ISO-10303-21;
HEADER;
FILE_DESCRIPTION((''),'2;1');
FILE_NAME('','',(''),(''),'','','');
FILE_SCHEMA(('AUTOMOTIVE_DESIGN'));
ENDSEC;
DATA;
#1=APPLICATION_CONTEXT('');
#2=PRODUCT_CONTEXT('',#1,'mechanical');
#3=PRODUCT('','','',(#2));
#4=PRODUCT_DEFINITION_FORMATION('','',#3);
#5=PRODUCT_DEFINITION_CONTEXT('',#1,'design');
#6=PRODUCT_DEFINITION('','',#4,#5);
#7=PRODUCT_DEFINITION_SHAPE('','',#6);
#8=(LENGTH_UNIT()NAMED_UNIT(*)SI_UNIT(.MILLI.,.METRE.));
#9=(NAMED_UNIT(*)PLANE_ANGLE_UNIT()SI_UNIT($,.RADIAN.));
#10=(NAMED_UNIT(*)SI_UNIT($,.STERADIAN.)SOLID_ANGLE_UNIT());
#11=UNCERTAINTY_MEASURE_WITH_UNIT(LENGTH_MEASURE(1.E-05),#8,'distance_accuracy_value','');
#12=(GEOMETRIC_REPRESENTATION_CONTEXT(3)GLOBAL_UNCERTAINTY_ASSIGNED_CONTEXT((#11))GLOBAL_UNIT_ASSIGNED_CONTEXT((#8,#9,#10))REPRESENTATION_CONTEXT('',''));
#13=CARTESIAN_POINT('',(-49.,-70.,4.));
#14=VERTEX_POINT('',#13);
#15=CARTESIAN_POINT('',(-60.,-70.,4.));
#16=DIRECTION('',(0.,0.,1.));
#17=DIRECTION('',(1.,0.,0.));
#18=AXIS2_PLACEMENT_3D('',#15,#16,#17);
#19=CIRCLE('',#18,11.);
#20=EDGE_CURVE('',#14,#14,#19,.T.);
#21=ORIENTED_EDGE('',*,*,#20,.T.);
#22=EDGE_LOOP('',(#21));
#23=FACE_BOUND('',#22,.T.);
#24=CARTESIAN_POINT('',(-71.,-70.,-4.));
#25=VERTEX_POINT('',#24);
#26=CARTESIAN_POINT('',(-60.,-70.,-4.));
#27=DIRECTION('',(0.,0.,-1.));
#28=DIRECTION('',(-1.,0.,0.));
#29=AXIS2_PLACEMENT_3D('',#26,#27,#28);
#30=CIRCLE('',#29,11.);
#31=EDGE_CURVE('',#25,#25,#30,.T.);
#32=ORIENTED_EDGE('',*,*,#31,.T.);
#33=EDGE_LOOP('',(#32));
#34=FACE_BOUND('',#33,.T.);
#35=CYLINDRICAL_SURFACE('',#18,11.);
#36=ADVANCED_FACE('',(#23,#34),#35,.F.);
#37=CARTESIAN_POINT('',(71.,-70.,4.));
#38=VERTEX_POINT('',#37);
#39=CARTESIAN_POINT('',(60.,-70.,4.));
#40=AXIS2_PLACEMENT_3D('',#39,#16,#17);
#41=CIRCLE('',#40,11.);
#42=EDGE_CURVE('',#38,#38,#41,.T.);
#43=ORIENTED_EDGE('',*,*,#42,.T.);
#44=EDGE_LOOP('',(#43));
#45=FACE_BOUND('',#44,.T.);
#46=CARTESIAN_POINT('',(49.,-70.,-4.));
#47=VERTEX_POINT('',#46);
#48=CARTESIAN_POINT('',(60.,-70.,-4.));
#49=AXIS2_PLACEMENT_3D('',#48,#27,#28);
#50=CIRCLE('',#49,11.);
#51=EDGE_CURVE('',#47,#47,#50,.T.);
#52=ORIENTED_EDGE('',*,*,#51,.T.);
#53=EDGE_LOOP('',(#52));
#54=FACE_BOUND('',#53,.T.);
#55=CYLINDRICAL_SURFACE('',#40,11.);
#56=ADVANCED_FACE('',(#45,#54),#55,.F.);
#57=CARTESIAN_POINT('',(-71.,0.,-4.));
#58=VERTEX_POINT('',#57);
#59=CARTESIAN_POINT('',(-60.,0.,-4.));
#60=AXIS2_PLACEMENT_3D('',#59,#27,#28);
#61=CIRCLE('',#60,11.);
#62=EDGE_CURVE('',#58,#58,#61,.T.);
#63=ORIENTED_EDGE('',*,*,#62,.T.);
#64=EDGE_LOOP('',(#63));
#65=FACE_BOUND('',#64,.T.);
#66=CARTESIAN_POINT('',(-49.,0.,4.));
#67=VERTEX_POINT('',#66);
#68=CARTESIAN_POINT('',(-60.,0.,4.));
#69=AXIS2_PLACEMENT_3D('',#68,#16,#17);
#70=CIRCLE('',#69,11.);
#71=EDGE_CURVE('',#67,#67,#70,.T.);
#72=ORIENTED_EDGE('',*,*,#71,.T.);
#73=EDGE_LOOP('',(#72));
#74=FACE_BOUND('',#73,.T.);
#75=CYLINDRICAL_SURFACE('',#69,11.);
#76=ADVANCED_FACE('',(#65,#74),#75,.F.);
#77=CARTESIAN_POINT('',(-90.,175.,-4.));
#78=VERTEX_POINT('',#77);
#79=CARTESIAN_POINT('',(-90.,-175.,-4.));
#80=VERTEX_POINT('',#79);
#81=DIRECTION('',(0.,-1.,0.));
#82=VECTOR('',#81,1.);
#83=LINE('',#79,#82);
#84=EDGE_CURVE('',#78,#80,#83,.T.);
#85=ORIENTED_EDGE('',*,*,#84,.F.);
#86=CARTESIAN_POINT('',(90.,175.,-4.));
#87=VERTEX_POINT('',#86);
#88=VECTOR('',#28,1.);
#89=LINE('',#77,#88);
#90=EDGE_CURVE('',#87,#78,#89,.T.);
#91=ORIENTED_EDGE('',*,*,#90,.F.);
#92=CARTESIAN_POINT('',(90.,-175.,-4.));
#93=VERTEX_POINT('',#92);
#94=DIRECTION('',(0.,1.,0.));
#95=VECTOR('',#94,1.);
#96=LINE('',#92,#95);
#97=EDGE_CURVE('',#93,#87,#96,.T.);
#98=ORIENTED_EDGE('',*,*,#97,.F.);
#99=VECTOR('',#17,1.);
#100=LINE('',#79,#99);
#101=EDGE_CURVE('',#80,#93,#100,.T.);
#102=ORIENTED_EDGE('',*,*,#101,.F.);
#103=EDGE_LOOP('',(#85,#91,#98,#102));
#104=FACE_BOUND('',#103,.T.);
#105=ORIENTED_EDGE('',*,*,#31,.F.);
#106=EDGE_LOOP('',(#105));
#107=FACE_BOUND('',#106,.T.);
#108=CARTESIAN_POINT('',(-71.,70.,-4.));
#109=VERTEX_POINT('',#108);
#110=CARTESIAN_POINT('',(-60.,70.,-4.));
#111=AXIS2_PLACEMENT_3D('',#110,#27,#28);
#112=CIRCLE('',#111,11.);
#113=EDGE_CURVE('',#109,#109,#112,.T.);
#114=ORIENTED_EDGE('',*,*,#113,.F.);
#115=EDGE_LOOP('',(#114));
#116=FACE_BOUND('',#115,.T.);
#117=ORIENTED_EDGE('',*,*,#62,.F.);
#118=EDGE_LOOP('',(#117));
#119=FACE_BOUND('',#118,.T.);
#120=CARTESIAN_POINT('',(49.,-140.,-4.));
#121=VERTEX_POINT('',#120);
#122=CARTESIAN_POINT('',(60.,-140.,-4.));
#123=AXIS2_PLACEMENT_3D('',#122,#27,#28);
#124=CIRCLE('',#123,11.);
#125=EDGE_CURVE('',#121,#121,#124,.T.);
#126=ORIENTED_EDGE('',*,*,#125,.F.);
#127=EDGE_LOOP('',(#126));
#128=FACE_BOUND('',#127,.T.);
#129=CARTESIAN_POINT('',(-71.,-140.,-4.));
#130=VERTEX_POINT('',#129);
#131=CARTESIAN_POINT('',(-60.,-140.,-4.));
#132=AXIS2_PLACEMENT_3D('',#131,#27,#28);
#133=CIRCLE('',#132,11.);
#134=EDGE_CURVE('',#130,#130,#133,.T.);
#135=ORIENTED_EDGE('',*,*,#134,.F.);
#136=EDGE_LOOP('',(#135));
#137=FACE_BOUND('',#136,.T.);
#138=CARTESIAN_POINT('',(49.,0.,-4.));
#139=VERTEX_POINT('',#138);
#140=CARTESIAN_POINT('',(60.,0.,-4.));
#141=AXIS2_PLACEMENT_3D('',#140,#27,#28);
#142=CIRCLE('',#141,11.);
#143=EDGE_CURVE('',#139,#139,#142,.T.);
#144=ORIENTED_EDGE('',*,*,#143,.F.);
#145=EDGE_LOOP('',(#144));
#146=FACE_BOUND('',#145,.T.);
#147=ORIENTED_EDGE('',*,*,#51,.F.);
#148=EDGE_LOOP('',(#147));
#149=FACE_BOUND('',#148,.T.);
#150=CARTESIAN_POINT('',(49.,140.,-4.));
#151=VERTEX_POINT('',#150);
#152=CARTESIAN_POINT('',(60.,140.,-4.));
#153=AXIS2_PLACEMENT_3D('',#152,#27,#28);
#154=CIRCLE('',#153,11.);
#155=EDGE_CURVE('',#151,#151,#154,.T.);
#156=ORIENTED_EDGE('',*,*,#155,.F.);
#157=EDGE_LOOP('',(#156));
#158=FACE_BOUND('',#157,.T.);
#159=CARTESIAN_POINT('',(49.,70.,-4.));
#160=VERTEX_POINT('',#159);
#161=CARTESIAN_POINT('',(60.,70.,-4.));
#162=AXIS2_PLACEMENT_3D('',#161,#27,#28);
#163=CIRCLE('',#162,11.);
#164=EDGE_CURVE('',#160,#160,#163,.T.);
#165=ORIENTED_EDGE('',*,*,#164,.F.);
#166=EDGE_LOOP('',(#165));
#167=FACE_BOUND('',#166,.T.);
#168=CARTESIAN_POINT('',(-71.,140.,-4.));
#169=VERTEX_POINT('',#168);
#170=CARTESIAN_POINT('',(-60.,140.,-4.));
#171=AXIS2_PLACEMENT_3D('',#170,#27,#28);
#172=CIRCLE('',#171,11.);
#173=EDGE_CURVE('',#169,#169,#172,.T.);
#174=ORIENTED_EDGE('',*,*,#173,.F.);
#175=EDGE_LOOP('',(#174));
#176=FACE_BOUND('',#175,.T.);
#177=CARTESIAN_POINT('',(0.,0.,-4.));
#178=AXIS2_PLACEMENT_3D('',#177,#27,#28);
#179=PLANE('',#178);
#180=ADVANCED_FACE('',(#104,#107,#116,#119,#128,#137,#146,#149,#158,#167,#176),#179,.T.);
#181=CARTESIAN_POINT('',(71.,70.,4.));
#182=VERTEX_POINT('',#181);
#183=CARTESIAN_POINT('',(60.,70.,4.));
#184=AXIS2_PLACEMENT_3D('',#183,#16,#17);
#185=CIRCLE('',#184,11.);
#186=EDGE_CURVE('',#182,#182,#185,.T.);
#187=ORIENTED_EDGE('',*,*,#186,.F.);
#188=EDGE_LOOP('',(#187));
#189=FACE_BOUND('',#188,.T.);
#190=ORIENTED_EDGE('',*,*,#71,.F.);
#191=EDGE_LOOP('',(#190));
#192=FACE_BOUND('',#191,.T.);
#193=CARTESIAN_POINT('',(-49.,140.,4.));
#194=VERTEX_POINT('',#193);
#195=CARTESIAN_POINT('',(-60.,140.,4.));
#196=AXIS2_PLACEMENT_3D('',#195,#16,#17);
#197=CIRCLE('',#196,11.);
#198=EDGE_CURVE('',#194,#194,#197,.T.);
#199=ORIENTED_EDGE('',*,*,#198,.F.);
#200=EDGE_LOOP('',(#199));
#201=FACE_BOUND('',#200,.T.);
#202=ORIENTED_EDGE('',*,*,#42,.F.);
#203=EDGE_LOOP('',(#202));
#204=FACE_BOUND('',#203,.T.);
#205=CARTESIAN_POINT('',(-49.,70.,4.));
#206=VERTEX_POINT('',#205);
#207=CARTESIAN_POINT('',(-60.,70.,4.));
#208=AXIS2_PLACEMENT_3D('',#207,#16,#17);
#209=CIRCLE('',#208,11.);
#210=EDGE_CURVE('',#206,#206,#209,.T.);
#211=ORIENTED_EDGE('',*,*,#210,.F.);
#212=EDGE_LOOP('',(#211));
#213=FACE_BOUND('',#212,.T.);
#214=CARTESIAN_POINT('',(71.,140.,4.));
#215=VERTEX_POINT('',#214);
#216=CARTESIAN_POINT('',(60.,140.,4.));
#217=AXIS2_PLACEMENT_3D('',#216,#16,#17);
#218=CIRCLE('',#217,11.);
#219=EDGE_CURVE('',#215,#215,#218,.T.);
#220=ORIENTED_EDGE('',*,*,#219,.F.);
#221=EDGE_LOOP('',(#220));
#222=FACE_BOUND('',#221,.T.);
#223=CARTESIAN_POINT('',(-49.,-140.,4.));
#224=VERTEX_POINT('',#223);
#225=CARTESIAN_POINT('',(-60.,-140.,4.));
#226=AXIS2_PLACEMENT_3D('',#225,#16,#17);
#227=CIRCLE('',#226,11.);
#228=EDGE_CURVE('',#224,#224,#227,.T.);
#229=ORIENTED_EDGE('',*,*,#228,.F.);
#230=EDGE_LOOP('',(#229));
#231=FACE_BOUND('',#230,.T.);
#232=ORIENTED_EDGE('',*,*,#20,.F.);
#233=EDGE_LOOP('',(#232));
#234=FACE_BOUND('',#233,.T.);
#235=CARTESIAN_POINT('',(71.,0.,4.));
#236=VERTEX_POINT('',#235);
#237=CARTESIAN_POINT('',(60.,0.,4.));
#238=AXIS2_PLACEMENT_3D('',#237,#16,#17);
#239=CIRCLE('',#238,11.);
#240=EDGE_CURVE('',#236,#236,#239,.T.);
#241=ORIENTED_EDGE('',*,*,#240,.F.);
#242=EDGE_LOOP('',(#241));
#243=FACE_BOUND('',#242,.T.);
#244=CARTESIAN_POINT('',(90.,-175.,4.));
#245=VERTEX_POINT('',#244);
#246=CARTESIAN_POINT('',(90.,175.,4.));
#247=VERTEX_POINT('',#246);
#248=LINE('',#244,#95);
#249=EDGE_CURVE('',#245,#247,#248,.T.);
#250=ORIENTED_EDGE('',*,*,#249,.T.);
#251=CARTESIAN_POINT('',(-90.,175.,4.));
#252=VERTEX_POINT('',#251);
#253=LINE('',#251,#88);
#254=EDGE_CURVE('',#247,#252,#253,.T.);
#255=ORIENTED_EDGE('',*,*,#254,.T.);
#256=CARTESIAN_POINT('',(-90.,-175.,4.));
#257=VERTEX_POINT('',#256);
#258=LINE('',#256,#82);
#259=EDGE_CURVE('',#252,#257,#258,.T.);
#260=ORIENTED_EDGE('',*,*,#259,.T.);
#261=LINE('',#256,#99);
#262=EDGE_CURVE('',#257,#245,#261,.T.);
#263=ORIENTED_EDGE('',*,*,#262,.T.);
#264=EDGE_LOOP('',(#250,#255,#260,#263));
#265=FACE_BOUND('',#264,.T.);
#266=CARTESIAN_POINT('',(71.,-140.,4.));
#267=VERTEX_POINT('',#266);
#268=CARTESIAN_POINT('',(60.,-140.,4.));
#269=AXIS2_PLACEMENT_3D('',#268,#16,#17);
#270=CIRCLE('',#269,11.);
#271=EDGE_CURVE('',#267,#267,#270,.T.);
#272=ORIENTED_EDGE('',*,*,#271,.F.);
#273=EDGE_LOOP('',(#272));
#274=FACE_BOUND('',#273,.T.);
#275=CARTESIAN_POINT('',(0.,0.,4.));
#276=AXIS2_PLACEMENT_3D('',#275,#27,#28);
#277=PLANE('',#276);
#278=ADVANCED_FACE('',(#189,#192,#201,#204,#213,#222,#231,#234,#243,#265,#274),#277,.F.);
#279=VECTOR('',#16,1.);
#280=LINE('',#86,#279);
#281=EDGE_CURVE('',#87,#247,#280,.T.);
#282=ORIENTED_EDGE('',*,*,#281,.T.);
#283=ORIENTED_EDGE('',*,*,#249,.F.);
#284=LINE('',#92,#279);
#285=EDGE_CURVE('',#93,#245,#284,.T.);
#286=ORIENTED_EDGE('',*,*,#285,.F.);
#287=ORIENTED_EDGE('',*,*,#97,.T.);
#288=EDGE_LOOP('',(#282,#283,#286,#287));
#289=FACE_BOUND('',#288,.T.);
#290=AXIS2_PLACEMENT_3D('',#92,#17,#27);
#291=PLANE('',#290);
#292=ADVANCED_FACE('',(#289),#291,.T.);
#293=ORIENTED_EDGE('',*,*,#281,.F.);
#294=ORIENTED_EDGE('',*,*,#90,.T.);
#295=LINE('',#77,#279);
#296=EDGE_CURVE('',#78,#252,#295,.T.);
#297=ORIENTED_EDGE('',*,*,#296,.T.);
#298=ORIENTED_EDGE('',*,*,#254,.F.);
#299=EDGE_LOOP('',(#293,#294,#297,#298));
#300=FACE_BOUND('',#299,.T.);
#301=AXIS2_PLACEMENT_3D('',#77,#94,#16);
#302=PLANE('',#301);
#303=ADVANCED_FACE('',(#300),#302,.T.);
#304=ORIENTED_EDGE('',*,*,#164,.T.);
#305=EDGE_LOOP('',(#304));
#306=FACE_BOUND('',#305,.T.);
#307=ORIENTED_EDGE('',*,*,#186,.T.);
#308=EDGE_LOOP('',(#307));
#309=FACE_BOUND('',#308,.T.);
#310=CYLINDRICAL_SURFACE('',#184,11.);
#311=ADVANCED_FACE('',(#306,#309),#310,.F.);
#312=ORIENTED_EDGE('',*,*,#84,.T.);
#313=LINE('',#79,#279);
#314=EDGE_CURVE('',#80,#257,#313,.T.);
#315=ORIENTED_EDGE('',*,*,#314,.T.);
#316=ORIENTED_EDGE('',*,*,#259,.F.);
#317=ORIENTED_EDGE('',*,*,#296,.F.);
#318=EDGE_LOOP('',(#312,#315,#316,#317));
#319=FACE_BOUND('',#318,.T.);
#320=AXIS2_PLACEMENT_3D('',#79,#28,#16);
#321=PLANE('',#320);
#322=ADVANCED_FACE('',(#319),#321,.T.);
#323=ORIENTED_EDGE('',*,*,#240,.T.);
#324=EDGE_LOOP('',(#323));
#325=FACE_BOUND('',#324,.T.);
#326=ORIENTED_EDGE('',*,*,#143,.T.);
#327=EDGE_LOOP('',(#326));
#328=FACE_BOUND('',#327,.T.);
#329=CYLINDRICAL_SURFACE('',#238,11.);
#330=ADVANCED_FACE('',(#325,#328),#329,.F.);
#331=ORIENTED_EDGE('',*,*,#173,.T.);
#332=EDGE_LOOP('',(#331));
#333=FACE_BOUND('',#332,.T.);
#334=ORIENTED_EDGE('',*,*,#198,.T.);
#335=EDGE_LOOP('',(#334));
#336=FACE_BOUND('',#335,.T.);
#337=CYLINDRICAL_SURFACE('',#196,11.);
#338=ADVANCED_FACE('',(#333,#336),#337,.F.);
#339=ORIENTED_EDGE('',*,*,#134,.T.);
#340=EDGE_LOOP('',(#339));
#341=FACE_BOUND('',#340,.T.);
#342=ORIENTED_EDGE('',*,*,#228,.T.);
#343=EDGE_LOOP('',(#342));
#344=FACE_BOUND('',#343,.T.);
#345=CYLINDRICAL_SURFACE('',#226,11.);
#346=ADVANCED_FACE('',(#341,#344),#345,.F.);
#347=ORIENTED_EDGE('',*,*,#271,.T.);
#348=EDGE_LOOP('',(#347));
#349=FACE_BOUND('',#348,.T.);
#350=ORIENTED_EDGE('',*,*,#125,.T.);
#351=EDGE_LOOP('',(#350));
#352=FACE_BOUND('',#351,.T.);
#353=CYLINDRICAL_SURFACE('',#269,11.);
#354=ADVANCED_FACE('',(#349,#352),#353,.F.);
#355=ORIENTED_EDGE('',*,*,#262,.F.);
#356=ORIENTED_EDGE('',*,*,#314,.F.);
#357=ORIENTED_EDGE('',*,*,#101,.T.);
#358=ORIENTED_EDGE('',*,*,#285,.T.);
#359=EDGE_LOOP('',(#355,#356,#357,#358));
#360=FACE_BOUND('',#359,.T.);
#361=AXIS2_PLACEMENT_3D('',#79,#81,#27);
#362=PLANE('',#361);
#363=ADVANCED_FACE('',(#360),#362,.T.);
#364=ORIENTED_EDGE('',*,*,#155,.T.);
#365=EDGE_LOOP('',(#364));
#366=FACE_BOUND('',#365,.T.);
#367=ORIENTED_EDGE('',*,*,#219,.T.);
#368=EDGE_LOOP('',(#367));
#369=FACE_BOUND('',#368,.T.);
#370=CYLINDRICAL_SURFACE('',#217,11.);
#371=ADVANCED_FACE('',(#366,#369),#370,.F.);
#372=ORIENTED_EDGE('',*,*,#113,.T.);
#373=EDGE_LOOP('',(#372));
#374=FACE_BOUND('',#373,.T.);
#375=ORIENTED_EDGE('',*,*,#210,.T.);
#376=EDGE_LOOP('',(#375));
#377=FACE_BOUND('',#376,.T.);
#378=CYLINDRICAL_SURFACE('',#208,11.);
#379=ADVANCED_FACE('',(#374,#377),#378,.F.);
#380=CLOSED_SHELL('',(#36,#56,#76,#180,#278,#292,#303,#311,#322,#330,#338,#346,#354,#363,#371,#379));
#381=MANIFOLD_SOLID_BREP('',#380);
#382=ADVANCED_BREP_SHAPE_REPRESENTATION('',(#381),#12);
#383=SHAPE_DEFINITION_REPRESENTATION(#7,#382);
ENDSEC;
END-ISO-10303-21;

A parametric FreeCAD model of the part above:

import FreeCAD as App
import Part
import Sketcher

V = App.Vector
Q = App.Units.Quantity

doc = App.newDocument("Part")
body = doc.addObject("PartDesign::Body", "Body")

# Sketch on XY plane
sketch1 = body.newObject("Sketcher::SketchObject", "Sketch")
sketch1.AttachmentSupport = (doc.getObject("XY_Plane"), [""])
sketch1.MapMode = "FlatFace"
sketch1.addGeometry(Part.LineSegment(V(-90, 175, 0), V(-90, -175, 0)), False)
sketch1.addGeometry(Part.LineSegment(V(-90, -175, 0), V(90, -175, 0)), False)
sketch1.addGeometry(Part.LineSegment(V(90, -175, 0), V(90, 175, 0)), False)
sketch1.addGeometry(Part.LineSegment(V(90, 175, 0), V(-90, 175, 0)), False)
sketch1.addConstraint(Sketcher.Constraint("Coincident", 0, 2, 1, 1))
sketch1.addConstraint(Sketcher.Constraint("Coincident", 1, 2, 2, 1))
sketch1.addConstraint(Sketcher.Constraint("Coincident", 2, 2, 3, 1))
sketch1.addConstraint(Sketcher.Constraint("Coincident", 3, 2, 0, 1))
sketch1.addConstraint(Sketcher.Constraint("Vertical", 0))
sketch1.addConstraint(Sketcher.Constraint("Horizontal", 1))
sketch1.addConstraint(Sketcher.Constraint("Vertical", 2))
sketch1.addConstraint(Sketcher.Constraint("Horizontal", 3))
sketch1.addConstraint(Sketcher.Constraint("Symmetric", 0, 2, 2, 2, -1, 1))
sketch1.addConstraint(Sketcher.Constraint("DistanceX", 1, 1, 1, 2, Q("180 mm")))
sketch1.addConstraint(Sketcher.Constraint("DistanceY", 0, 2, 0, 1, Q("350 mm")))
pad1 = body.newObject("PartDesign::Pad", "Pad")
pad1.Profile = sketch1
pad1.Length = 8
pad1.Midplane = True

# Sketch on XY plane
sketch2 = body.newObject("Sketcher::SketchObject", "Sketch001")
sketch2.AttachmentSupport = (doc.getObject("XY_Plane"), [""])
sketch2.MapMode = "FlatFace"
sketch2.AttachmentOffset = App.Placement(V(0, 0, 4), App.Rotation())
sketch2.addGeometry(Part.Circle(V(-60, 140, 0), V(0, 0, 1), 11), False)
sketch2.addGeometry(Part.Circle(V(60, 140, 0), V(0, 0, 1), 11), False)
sketch2.addConstraint(Sketcher.Constraint("Equal", 0, 1))
sketch2.addConstraint(Sketcher.Constraint("Symmetric", 0, 3, 1, 3, -2))
sketch2.addConstraint(Sketcher.Constraint("Diameter", 0, Q("22 mm")))
sketch2.addConstraint(Sketcher.Constraint("DistanceX", 0, 3, -1, 1, Q("60 mm")))
sketch2.addConstraint(Sketcher.Constraint("DistanceY", -1, 1, 0, 3, Q("140 mm")))
doc.recompute()
hole = body.newObject("PartDesign::Hole", "Hole")
hole.Profile = sketch2
hole.ThreadType = "None"
hole.Diameter = 22
hole.DepthType = "ThroughAll"
doc.recompute()

linearpattern = body.newObject("PartDesign::LinearPattern", "LinearPattern")
linearpattern.Originals = [hole]
linearpattern.Direction = (doc.getObject("Y_Axis"), [""])
linearpattern.Mode = "offset"
linearpattern.Offset = 70
linearpattern.Occurrences = 5
linearpattern.Reversed = True
body.Tip = linearpattern

doc.recompute()
